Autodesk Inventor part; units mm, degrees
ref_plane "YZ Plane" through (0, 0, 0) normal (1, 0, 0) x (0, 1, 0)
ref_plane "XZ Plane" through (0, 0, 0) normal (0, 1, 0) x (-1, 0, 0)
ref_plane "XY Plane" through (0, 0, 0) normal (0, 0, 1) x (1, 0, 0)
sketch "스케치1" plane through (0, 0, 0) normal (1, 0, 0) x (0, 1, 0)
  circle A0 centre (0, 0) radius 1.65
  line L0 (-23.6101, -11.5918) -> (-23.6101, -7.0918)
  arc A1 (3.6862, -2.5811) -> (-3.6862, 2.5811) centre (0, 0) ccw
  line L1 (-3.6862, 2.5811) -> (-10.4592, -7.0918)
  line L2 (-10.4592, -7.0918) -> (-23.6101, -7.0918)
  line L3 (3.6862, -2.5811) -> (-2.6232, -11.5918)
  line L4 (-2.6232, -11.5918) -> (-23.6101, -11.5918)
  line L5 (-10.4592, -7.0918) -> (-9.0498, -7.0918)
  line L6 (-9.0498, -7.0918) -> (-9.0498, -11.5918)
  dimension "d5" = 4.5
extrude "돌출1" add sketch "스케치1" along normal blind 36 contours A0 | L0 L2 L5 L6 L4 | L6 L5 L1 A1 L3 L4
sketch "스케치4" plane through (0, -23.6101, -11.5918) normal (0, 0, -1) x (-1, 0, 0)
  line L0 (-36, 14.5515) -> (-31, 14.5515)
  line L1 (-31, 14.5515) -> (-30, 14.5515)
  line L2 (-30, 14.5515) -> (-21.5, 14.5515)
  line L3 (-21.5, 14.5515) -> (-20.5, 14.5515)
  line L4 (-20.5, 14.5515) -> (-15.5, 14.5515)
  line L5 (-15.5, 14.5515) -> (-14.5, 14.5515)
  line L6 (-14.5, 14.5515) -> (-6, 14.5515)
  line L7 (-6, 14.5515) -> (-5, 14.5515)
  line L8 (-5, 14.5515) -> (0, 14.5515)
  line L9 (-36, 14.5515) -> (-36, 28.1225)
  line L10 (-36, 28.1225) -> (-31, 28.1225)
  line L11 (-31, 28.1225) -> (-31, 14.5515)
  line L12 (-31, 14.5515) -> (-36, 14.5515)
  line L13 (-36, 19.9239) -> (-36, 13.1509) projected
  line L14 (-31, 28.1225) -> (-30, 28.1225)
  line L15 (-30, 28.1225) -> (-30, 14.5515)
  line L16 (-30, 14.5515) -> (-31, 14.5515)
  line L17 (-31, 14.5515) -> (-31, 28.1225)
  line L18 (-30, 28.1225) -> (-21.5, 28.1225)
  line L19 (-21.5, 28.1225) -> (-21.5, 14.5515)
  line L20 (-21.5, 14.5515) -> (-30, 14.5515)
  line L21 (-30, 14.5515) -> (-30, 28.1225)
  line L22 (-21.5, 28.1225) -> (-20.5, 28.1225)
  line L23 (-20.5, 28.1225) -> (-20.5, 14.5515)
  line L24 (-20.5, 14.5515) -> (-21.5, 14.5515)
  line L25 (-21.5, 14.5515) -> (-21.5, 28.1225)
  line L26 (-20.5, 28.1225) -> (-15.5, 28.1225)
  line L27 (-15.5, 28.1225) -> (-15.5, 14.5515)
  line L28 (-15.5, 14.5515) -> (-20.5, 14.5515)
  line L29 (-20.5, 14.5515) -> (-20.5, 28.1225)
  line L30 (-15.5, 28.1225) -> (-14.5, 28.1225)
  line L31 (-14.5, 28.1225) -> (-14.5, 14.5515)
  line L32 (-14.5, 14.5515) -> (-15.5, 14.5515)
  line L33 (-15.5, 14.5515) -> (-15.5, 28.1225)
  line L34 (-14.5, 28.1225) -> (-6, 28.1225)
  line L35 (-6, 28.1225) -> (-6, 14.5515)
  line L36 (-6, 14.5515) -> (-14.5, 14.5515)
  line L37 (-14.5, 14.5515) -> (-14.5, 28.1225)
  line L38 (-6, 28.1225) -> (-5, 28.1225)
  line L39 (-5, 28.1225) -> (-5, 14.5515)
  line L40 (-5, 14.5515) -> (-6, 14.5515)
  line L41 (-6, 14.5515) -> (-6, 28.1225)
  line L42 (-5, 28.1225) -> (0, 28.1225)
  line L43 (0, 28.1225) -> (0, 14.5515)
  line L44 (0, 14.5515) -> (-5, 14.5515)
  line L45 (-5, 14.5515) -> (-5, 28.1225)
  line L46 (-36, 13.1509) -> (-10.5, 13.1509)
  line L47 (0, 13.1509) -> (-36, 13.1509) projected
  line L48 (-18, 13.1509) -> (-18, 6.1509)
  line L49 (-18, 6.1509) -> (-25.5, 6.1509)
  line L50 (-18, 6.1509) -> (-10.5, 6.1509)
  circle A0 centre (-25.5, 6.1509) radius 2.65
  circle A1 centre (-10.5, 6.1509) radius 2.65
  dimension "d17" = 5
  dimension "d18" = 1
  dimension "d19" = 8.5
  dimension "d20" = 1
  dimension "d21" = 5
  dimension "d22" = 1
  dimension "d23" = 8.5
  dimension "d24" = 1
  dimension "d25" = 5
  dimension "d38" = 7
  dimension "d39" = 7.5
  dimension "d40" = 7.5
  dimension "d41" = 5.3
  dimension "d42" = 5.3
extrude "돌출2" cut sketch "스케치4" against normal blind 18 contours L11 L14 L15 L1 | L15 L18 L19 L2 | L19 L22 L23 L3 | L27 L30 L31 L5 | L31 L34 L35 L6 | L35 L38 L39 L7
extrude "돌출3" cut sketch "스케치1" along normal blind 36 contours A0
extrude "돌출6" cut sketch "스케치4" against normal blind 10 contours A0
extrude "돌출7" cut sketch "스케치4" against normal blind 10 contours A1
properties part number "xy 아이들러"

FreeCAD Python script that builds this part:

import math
import FreeCAD as App
import Part
import Sketcher

V = App.Vector
Q = App.Units.Quantity

doc = App.newDocument("Part")
body = doc.addObject("PartDesign::Body", "Body")

# Sketch on YZ plane
sketch1 = body.newObject("Sketcher::SketchObject", "Sketch")
sketch1.AttachmentSupport = (doc.getObject("YZ_Plane"), [""])
sketch1.MapMode = "FlatFace"
sketch1.addGeometry(Part.LineSegment(V(-3.7, 2.6, 0), V(-10.5, -7.1, 0)), False)
sketch1.addGeometry(Part.LineSegment(V(-10.5, -7.1, 0), V(-23.6, -7.1, 0)), False)
sketch1.addGeometry(Part.LineSegment(V(-23.6, -7.1, 0), V(-23.6, -11.6, 0)), False)
sketch1.addGeometry(Part.LineSegment(V(-23.6, -11.6, 0), V(-2.6, -11.6, 0)), False)
sketch1.addGeometry(Part.LineSegment(V(-2.6, -11.6, 0), V(3.7, -2.6, 0)), False)
sketch1.addGeometry(Part.ArcOfCircle(Part.Circle(V(0, 0, 0), V(0, 0, 1), 4.5), math.radians(-35), math.radians(145)), False)
sketch1.addConstraint(Sketcher.Constraint("Coincident", 0, 2, 1, 1))
sketch1.addConstraint(Sketcher.Constraint("Coincident", 1, 2, 2, 1))
sketch1.addConstraint(Sketcher.Constraint("Coincident", 2, 2, 3, 1))
sketch1.addConstraint(Sketcher.Constraint("Coincident", 3, 2, 4, 1))
sketch1.addConstraint(Sketcher.Constraint("Tangent", 4, 2, 5, 1))
sketch1.addConstraint(Sketcher.Constraint("Tangent", 5, 2, 0, 1))
sketch1.addConstraint(Sketcher.Constraint("Horizontal", 1))
sketch1.addConstraint(Sketcher.Constraint("Vertical", 2))
sketch1.addConstraint(Sketcher.Constraint("Horizontal", 3))
sketch1.addConstraint(Sketcher.Constraint("Coincident", 5, 3, -1, 1))
sketch1.addConstraint(Sketcher.Constraint("Parallel", 0, 4))
sketch1.addConstraint(Sketcher.Constraint("Radius", 5, 4.5))
sketch1.addConstraint(Sketcher.Constraint("DistanceY", 2, 2, 2, 1, 4.5))
sketch1.addConstraint(Sketcher.Constraint("Angle", 0, Q("-124.9999 deg")))
sketch1.addConstraint(Sketcher.Constraint("Distance", 4, 11.0))
sketch1.addConstraint(Sketcher.Constraint("DistanceX", 1, 2, 1, 1, 13.151))
pad1 = body.newObject("PartDesign::Pad", "Pad")
pad1.Profile = sketch1
pad1.Length = 36

# Sketch on XY plane
sketch2 = body.newObject("Sketcher::SketchObject", "Sketch001")
sketch2.AttachmentSupport = (doc.getObject("XY_Plane"), [""])
sketch2.MapMode = "FlatFace"
sketch2.AttachmentOffset = App.Placement(V(0, 0, -11.5918), App.Rotation())
sketch2.addGeometry(Part.LineSegment(V(31, 5, 0), V(31, -9, 0)), False)
sketch2.addGeometry(Part.LineSegment(V(31, -9, 0), V(20, -9, 0)), False)
sketch2.addGeometry(Part.LineSegment(V(20, -9, 0), V(20, 5, 0)), False)
sketch2.addGeometry(Part.LineSegment(V(20, 5, 0), V(31, 5, 0)), False)
sketch2.addGeometry(Part.LineSegment(V(16, 5, 0), V(16, -9, 0)), False)
sketch2.addGeometry(Part.LineSegment(V(16, -9, 0), V(5, -9, 0)), False)
sketch2.addGeometry(Part.LineSegment(V(5, -9, 0), V(5, 5, 0)), False)
sketch2.addGeometry(Part.LineSegment(V(5, 5, 0), V(16, 5, 0)), False)
sketch2.addConstraint(Sketcher.Constraint("Coincident", 0, 2, 1, 1))
sketch2.addConstraint(Sketcher.Constraint("Coincident", 1, 2, 2, 1))
sketch2.addConstraint(Sketcher.Constraint("Coincident", 2, 2, 3, 1))
sketch2.addConstraint(Sketcher.Constraint("Coincident", 3, 2, 0, 1))
sketch2.addConstraint(Sketcher.Constraint("Coincident", 4, 2, 5, 1))
sketch2.addConstraint(Sketcher.Constraint("Coincident", 5, 2, 6, 1))
sketch2.addConstraint(Sketcher.Constraint("Coincident", 6, 2, 7, 1))
sketch2.addConstraint(Sketcher.Constraint("Coincident", 7, 2, 4, 1))
sketch2.addConstraint(Sketcher.Constraint("Vertical", 0))
sketch2.addConstraint(Sketcher.Constraint("Horizontal", 1))
sketch2.addConstraint(Sketcher.Constraint("Vertical", 2))
sketch2.addConstraint(Sketcher.Constraint("Horizontal", 3))
sketch2.addConstraint(Sketcher.Constraint("Vertical", 4))
sketch2.addConstraint(Sketcher.Constraint("Horizontal", 5))
sketch2.addConstraint(Sketcher.Constraint("Vertical", 6))
sketch2.addConstraint(Sketcher.Constraint("Horizontal", 7))
sketch2.addConstraint(Sketcher.Constraint("Horizontal", 1, 2, 4, 2))
sketch2.addConstraint(Sketcher.Constraint("Horizontal", 3, 2, 6, 2))
sketch2.addConstraint(Sketcher.Constraint("Equal", 3, 5))
sketch2.addConstraint(Sketcher.Constraint("DistanceX", -1, 1, 5, 2, 5.0))
sketch2.addConstraint(Sketcher.Constraint("DistanceX", 4, 2, 1, 2, 5.0))
sketch2.addConstraint(Sketcher.Constraint("DistanceX", 1, 2, 1, 1, 10.5))
sketch2.addConstraint(Sketcher.Constraint("DistanceY", 0, 2, 0, 1, 13.571))
sketch2.addConstraint(Sketcher.Constraint("DistanceY", 0, 2, -1, 1, 9.0586))
pocket1 = body.newObject("PartDesign::Pocket", "Pocket")
pocket1.Profile = sketch2
pocket1.Length = 18
pocket1.Reversed = True

# Sketch on YZ plane
sketch3 = body.newObject("Sketcher::SketchObject", "Sketch002")
sketch3.AttachmentSupport = (doc.getObject("YZ_Plane"), [""])
sketch3.MapMode = "FlatFace"
sketch3.addGeometry(Part.Circle(V(0, 0, 0), V(0, 0, 1), 1.6), False)
sketch3.addConstraint(Sketcher.Constraint("Coincident", 0, 3, -1, 1))
sketch3.addConstraint(Sketcher.Constraint("Diameter", 0, 3.3))
pocket2 = body.newObject("PartDesign::Pocket", "Pocket001")
pocket2.Profile = sketch3
pocket2.Length = 36
pocket2.Reversed = True

# Sketch on XY plane
sketch4 = body.newObject("Sketcher::SketchObject", "Sketch003")
sketch4.AttachmentSupport = (doc.getObject("XY_Plane"), [""])
sketch4.MapMode = "FlatFace"
sketch4.AttachmentOffset = App.Placement(V(0, 0, -11.5918), App.Rotation())
sketch4.addGeometry(Part.Circle(V(25.5, -17.5, 0), V(0, 0, 1), 2.6), False)
sketch4.addConstraint(Sketcher.Constraint("Diameter", 0, 5.3))
sketch4.addConstraint(Sketcher.Constraint("DistanceX", -1, 1, 0, 3, 25.5))
sketch4.addConstraint(Sketcher.Constraint("DistanceY", 0, 3, -1, 1, 17.4592))
pocket3 = body.newObject("PartDesign::Pocket", "Pocket002")
pocket3.Profile = sketch4
pocket3.Length = 10
pocket3.Reversed = True

# Sketch on XY plane
sketch5 = body.newObject("Sketcher::SketchObject", "Sketch004")
sketch5.AttachmentSupport = (doc.getObject("XY_Plane"), [""])
sketch5.MapMode = "FlatFace"
sketch5.AttachmentOffset = App.Placement(V(0, 0, -11.5918), App.Rotation())
sketch5.addGeometry(Part.Circle(V(10.5, -17.5, 0), V(0, 0, 1), 2.6), False)
sketch5.addConstraint(Sketcher.Constraint("Diameter", 0, 5.3))
sketch5.addConstraint(Sketcher.Constraint("DistanceX", -1, 1, 0, 3, 10.5))
sketch5.addConstraint(Sketcher.Constraint("DistanceY", 0, 3, -1, 1, 17.4592))
pocket4 = body.newObject("PartDesign::Pocket", "Pocket003")
pocket4.Profile = sketch5
pocket4.Length = 10
pocket4.Reversed = True

doc.recompute()
